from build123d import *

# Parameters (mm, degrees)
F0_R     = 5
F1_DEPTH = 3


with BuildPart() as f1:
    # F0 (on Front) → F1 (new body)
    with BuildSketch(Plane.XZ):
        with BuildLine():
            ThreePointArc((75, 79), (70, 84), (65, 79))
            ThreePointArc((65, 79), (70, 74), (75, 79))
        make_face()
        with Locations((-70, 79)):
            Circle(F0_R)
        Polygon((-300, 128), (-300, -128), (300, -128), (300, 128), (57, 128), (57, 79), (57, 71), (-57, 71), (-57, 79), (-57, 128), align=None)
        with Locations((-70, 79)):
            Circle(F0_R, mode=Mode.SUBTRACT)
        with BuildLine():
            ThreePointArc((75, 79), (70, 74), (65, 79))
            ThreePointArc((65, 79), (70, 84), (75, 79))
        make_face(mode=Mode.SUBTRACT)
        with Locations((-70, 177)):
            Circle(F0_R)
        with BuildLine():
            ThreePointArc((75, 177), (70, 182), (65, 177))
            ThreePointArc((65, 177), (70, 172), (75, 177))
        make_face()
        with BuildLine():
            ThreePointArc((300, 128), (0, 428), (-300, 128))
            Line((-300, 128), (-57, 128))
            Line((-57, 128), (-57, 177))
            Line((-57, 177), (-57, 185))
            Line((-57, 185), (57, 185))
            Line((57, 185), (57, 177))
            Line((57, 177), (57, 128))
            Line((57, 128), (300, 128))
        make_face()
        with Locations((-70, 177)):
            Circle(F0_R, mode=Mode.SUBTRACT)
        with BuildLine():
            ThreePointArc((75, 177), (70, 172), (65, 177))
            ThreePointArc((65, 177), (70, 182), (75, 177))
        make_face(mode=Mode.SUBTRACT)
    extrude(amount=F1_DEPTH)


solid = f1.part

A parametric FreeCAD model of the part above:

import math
import FreeCAD as App
import Part
import Sketcher
Q = App.Units.Quantity

doc = App.newDocument("Part")
body = doc.addObject("PartDesign::Body", "Body")

# Sketch on XZ plane
sketch1 = doc.addObject("Sketcher::SketchObject", "Sketch")
body.addObject(sketch1)
sketch1.AttachmentSupport = (doc.XZ_Plane, [""])
sketch1.MapMode = "FlatFace"
sketch1.addGeometry([
    Part.LineSegment(App.Vector(-300, 128, 0), App.Vector(-300, -128, 0)),  # 0
    Part.LineSegment(App.Vector(-300, -128, 0), App.Vector(300, -128, 0)),  # 1
    Part.LineSegment(App.Vector(300, -128, 0), App.Vector(300, 128, 0)),  # 2
    Part.ArcOfCircle(Part.Circle(App.Vector(0, 128, 0), App.Vector(0, 0, 1), 300), math.radians(0), math.radians(180)),  # 3
    Part.Circle(App.Vector(-70, 79, 0), App.Vector(0, 0, 1), 5),  # 4
    Part.Circle(App.Vector(70, 79, 0), App.Vector(0, 0, 1), 5),  # 5
    Part.Circle(App.Vector(-70, 177, 0), App.Vector(0, 0, 1), 5),  # 6
    Part.LineSegment(App.Vector(-57, 71, 0), App.Vector(-57, 185, 0)),  # 7
    Part.LineSegment(App.Vector(-57, 185, 0), App.Vector(57, 185, 0)),  # 8
    Part.LineSegment(App.Vector(57, 185, 0), App.Vector(57, 71, 0)),  # 9
    Part.LineSegment(App.Vector(57, 71, 0), App.Vector(-57, 71, 0)),  # 10
    Part.Circle(App.Vector(70, 177, 0), App.Vector(0, 0, 1), 5),  # 11
], False)
sketch1.addConstraint([
    Sketcher.Constraint("Coincident", 0, 2, 1, 1),
    Sketcher.Constraint("Coincident", 1, 2, 2, 1),
    Sketcher.Constraint("Tangent", 2, 2, 3, 1),
    Sketcher.Constraint("Tangent", 3, 2, 0, 1),
    Sketcher.Constraint("Coincident", 7, 2, 8, 1),
    Sketcher.Constraint("Coincident", 8, 2, 9, 1),
    Sketcher.Constraint("Coincident", 9, 2, 10, 1),
    Sketcher.Constraint("Coincident", 10, 2, 7, 1),
    Sketcher.Constraint("Vertical", 0),
    Sketcher.Constraint("Horizontal", 1),
    Sketcher.Constraint("Vertical", 2),
    Sketcher.Constraint("Vertical", 7),
    Sketcher.Constraint("Horizontal", 8),
    Sketcher.Constraint("Vertical", 9),
    Sketcher.Constraint("Horizontal", 10),
    Sketcher.Constraint("Equal", 4, 5),
    Sketcher.Constraint("Equal", 5, 6),
    Sketcher.Constraint("Equal", 6, 11),
    Sketcher.Constraint("Symmetric", 0, 2, 2, 2, -1, 1),
    Sketcher.Constraint("Symmetric", 4, 3, 5, 3, -2),
    Sketcher.Constraint("Symmetric", 6, 3, 11, 3, -2),
    Sketcher.Constraint("Vertical", 4, 3, 6, 3),
    Sketcher.Constraint("Equal", 10, 7),
    Sketcher.Constraint("Diameter", 4, Q("10 mm")),
    Sketcher.Constraint("Radius", 3, Q("300 mm")),
    Sketcher.Constraint("DistanceX", 8, 1, 8, 2, Q("114 mm")),
    Sketcher.Constraint("DistanceY", 0, 2, 0, 1, Q("256 mm")),
    Sketcher.Constraint("DistanceX", 4, 3, -1, 1, Q("70 mm")),
    Sketcher.Constraint("DistanceY", -1, 1, 4, 3, Q("79 mm")),
    Sketcher.Constraint("DistanceY", -1, 1, 6, 3, Q("177 mm")),
    Sketcher.Constraint("DistanceX", 7, 2, -1, 1, Q("57 mm")),
    Sketcher.Constraint("DistanceY", -1, 1, 7, 2, Q("185 mm")),
])
pad1 = doc.addObject("PartDesign::Pad", "Pad")
body.addObject(pad1)
pad1.Profile = sketch1
pad1.Length = 3

doc.recompute()
